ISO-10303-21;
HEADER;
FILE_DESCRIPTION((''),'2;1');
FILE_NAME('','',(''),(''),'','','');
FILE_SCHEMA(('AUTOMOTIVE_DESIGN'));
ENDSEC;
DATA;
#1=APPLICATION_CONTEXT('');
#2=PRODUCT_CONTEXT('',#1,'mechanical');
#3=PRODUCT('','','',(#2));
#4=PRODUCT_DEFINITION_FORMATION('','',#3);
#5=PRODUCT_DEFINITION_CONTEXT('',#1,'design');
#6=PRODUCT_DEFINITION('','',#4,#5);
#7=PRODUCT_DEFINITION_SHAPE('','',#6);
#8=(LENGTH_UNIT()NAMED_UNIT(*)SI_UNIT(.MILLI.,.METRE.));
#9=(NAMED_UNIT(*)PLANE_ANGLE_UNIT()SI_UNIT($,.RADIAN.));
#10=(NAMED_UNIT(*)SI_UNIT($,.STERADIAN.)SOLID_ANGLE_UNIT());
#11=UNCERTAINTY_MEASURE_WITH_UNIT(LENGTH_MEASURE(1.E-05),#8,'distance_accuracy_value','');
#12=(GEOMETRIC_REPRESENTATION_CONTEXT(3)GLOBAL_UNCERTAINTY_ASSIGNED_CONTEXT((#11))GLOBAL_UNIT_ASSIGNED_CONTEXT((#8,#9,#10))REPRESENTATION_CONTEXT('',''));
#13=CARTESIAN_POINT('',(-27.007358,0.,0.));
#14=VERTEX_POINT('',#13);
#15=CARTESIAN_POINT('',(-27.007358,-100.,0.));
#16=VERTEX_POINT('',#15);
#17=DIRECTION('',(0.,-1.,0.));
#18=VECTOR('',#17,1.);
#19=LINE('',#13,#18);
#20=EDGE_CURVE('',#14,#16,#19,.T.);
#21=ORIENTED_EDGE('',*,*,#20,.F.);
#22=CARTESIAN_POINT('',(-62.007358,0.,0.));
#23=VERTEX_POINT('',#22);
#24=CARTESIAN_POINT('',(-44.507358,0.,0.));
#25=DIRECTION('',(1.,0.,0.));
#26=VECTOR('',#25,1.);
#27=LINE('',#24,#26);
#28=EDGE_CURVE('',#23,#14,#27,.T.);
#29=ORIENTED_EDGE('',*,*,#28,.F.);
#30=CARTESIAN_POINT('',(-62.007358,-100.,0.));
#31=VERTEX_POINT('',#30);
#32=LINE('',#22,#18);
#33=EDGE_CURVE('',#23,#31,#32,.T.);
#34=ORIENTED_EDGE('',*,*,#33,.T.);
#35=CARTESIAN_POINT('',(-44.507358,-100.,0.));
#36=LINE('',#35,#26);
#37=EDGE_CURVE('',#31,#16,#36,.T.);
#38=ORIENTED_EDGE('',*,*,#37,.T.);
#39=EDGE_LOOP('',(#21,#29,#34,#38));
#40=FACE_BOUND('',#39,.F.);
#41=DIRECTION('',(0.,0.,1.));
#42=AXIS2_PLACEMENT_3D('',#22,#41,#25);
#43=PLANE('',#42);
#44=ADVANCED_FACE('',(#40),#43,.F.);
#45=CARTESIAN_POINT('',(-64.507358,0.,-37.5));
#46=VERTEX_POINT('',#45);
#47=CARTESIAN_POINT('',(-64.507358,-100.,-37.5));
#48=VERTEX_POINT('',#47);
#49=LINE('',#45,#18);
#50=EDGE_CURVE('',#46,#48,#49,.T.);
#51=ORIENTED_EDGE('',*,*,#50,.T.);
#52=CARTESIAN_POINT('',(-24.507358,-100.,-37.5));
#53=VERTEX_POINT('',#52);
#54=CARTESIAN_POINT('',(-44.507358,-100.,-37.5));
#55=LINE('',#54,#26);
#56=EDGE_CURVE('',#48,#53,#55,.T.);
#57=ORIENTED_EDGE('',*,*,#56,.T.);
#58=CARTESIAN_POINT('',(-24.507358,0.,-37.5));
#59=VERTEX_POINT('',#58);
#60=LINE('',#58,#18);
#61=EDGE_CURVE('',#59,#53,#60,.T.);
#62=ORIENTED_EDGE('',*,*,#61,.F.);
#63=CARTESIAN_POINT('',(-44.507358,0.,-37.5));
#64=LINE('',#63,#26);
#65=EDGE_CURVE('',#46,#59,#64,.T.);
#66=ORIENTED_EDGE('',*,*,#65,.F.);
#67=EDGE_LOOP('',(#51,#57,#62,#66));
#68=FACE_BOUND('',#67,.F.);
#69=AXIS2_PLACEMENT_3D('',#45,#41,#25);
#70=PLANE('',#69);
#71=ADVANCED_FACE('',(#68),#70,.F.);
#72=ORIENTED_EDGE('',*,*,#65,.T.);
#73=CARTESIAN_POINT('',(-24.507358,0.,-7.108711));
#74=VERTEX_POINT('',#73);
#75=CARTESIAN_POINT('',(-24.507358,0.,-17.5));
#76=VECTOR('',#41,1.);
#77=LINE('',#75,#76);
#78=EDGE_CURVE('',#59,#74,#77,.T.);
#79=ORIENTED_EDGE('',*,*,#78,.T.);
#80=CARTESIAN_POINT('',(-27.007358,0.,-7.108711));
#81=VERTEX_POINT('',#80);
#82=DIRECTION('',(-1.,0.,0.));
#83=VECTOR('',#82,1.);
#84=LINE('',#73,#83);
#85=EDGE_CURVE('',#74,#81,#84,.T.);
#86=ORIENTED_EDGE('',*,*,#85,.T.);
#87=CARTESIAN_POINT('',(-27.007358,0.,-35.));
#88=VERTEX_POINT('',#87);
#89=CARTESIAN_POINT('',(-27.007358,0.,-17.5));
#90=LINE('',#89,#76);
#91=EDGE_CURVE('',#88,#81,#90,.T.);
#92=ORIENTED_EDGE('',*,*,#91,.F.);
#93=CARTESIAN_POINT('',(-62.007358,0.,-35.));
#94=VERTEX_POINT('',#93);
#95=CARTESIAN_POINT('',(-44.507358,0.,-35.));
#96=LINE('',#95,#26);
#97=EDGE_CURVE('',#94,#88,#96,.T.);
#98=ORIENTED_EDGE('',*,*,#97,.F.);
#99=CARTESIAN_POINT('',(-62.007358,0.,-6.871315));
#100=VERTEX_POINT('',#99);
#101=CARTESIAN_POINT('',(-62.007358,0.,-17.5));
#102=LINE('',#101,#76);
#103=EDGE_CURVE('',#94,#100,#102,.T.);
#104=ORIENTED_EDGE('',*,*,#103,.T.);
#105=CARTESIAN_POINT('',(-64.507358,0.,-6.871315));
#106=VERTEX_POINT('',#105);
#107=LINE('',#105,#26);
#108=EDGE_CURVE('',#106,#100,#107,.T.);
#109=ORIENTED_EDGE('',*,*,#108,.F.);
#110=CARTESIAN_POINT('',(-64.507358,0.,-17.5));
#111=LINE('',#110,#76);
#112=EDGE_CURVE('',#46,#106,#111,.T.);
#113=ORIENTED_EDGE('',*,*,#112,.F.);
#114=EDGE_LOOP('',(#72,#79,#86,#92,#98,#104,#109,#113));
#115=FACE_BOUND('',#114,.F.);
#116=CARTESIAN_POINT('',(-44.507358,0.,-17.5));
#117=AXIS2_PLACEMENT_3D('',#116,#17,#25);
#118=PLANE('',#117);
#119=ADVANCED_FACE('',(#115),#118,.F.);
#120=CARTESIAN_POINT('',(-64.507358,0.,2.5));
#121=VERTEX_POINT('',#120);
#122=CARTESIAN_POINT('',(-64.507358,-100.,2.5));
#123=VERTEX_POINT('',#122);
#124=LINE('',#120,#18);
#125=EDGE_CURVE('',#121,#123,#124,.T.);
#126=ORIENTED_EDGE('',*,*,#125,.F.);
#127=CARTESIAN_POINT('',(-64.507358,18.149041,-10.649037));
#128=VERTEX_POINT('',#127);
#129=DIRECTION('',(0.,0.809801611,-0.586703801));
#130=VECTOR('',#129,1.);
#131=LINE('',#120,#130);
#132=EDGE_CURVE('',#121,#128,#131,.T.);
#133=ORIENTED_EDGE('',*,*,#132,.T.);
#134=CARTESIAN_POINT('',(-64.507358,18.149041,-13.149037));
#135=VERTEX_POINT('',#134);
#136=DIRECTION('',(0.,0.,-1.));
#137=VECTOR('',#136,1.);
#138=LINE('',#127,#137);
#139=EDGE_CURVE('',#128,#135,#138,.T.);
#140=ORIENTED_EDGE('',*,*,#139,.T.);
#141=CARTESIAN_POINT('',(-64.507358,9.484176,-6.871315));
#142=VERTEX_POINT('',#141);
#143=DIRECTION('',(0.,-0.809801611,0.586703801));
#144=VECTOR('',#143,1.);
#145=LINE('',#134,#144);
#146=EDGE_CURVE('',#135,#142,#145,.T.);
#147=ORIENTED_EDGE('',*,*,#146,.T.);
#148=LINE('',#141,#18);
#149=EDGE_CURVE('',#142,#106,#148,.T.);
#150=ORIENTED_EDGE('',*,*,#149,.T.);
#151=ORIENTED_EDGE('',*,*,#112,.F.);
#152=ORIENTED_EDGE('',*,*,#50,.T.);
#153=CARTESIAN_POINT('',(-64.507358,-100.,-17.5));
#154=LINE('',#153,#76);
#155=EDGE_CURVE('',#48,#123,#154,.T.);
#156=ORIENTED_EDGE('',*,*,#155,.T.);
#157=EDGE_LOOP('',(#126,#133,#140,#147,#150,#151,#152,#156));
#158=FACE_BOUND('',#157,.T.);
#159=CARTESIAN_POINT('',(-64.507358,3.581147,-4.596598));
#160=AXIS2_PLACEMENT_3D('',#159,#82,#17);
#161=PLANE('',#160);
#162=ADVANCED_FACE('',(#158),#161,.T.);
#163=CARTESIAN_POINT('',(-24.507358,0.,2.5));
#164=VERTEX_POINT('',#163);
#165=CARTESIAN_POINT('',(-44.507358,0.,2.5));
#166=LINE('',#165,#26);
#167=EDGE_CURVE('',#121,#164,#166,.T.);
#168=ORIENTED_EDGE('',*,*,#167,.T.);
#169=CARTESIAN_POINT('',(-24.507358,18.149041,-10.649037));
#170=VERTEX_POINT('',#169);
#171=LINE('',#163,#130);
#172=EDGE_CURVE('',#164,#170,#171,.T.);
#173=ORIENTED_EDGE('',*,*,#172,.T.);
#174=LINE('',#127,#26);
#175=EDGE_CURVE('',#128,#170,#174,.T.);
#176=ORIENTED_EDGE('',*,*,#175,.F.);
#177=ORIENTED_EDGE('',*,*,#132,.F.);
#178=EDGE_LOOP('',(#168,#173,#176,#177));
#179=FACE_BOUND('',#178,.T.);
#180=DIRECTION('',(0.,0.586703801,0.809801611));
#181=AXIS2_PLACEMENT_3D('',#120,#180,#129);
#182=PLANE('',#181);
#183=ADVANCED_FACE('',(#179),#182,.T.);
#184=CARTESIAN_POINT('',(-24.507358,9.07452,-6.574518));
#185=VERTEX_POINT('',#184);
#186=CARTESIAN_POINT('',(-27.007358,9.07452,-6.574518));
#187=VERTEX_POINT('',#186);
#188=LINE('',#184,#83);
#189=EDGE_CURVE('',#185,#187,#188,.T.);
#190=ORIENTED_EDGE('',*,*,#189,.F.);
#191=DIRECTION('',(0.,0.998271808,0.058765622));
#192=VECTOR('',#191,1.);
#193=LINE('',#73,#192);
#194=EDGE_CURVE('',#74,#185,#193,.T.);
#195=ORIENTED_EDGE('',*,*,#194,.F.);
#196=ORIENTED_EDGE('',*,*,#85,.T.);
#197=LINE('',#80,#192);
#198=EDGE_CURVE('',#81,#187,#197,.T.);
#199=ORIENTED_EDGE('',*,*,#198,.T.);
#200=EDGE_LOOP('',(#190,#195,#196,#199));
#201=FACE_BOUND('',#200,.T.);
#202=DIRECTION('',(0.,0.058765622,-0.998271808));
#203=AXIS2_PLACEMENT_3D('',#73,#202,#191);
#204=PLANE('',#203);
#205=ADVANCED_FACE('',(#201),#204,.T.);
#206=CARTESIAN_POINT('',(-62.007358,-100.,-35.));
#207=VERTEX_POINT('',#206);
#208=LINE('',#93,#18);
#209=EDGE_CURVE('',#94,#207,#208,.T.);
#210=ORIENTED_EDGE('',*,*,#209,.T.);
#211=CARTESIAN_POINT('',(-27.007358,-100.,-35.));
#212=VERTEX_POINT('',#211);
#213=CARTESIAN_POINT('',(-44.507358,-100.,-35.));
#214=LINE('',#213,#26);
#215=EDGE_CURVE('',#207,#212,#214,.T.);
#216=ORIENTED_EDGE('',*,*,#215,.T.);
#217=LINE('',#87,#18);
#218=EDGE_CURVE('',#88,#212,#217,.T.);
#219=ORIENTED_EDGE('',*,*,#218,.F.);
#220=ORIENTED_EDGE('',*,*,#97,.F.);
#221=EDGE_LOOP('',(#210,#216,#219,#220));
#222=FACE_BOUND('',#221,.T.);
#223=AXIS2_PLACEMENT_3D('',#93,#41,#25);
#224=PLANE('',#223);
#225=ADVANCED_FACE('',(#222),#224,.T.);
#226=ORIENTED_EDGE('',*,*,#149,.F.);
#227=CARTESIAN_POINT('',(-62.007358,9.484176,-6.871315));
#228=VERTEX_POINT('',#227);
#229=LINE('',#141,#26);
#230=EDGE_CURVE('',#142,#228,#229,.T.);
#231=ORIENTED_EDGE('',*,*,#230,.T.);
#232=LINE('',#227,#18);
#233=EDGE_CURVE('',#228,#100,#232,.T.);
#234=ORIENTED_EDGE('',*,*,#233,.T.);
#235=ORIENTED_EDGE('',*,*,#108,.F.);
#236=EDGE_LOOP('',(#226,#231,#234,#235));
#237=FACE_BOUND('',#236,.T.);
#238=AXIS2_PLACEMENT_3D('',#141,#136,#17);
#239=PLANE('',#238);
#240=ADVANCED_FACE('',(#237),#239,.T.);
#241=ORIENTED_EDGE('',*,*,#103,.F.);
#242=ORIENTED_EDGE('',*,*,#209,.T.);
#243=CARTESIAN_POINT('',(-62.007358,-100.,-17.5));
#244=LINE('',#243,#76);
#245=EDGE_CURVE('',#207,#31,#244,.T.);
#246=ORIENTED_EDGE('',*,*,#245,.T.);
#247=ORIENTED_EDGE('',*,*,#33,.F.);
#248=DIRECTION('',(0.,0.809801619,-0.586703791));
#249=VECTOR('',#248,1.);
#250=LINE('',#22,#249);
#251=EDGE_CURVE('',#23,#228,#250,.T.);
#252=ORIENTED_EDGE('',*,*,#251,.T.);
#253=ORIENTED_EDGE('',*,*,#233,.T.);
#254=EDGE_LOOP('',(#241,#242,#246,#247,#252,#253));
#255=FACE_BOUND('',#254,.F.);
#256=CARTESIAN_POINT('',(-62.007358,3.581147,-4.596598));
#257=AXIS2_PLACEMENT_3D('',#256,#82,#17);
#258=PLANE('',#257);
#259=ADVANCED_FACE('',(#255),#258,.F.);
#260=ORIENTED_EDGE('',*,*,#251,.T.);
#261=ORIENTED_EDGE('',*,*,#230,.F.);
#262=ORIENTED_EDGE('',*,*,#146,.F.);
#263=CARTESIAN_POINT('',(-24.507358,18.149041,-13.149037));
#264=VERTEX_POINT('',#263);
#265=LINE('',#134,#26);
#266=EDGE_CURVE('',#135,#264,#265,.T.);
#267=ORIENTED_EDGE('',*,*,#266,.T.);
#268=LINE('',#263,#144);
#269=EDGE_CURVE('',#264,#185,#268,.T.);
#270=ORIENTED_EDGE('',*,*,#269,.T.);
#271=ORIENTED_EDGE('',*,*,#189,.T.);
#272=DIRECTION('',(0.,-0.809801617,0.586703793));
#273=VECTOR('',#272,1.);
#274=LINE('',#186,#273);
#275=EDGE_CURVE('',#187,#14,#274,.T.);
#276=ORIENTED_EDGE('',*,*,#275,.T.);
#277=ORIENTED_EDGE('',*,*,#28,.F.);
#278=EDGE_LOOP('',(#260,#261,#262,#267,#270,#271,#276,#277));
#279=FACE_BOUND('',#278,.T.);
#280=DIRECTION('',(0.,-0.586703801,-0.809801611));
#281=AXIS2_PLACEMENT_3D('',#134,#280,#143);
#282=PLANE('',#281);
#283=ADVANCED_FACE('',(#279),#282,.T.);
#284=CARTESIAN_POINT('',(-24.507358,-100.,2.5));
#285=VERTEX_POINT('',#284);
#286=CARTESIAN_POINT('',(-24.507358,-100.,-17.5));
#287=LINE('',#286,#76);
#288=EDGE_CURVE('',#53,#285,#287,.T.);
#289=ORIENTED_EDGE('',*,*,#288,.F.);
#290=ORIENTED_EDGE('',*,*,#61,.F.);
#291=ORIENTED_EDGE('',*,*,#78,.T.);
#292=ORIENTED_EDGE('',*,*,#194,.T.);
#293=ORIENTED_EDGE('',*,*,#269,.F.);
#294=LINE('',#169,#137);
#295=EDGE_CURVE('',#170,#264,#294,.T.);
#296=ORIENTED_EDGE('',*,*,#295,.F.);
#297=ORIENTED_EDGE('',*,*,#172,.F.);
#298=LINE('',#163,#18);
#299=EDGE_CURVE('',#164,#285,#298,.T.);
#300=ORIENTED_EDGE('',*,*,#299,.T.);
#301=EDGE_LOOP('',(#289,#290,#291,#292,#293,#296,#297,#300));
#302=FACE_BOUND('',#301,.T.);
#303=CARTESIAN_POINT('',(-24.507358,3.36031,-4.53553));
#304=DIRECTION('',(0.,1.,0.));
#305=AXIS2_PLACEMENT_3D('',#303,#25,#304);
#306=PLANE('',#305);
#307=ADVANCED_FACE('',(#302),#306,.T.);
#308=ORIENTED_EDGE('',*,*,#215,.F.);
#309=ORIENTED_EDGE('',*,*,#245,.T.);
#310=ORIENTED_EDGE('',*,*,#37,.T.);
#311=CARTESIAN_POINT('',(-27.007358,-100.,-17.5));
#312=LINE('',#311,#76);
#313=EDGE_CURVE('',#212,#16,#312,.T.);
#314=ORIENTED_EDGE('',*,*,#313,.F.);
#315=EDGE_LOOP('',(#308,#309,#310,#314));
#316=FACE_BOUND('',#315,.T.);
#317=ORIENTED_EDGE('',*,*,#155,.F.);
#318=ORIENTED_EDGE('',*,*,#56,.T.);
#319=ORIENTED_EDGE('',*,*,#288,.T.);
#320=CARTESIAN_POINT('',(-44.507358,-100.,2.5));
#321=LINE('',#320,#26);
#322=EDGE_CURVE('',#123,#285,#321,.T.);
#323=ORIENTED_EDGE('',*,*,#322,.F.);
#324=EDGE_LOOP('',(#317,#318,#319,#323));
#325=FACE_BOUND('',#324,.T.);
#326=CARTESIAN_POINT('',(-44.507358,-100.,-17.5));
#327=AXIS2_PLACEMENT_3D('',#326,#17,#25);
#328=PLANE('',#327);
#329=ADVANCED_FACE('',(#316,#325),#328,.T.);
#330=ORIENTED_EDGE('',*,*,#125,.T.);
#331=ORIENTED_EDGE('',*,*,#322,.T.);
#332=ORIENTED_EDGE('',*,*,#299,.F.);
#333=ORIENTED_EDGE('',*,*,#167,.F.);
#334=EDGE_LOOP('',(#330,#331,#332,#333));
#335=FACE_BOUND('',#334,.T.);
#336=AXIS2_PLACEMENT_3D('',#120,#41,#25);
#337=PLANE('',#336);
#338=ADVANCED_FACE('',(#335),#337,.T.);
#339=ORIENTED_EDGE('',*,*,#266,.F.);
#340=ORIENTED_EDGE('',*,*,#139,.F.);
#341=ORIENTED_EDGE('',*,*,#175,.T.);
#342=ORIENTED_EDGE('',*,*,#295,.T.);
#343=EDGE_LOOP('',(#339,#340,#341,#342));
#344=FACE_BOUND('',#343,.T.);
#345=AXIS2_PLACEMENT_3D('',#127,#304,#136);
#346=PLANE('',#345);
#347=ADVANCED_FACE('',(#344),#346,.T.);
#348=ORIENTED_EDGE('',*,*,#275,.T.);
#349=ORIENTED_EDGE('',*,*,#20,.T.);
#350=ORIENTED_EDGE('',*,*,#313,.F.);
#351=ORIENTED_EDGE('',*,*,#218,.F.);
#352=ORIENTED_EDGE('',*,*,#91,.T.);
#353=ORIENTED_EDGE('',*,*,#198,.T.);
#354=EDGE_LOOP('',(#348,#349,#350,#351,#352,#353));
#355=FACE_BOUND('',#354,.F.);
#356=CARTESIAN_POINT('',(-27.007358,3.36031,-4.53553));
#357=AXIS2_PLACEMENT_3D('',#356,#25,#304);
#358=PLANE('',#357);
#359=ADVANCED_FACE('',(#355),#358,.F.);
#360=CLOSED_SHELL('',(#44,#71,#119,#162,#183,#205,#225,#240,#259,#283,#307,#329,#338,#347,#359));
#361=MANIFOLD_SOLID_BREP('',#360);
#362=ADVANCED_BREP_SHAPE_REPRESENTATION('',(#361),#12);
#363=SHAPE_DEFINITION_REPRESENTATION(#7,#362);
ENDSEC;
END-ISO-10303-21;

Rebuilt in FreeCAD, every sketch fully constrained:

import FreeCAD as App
import Part
import Sketcher


def add_polygon(sketch, points):
    """Adds a closed chain of lines whose ends are joined by coincident constraints."""
    first, n = sketch.GeometryCount, len(points)
    for a, b in zip(points, points[1:] + points[:1]):
        sketch.addGeometry(Part.LineSegment(App.Vector(*a, 0), App.Vector(*b, 0)), False)
    for i in range(n):
        sketch.addConstraint(Sketcher.Constraint("Coincident", first + i, 2, first + (i + 1) % n, 1))

doc = App.newDocument("Part")
body = doc.addObject("PartDesign::Body", "Body")

sketch1 = body.newObject("Sketcher::SketchObject", "Sketch")
sketch1.AttachmentSupport = (doc.getObject("XZ_Plane"), [""])
sketch1.MapMode = "FlatFace"
add_polygon(sketch1, [(-65, 2), (-65, -38), (-25, -38), (-25, 2)])
add_polygon(sketch1, [(-27, -35), (-62, -35), (-62, 0), (-27, 0)])
sketch1.addConstraint(Sketcher.Constraint("Vertical", 0))
sketch1.addConstraint(Sketcher.Constraint("Horizontal", 1))
sketch1.addConstraint(Sketcher.Constraint("Vertical", 2))
sketch1.addConstraint(Sketcher.Constraint("Horizontal", 3))
sketch1.addConstraint(Sketcher.Constraint("Horizontal", 4))
sketch1.addConstraint(Sketcher.Constraint("Vertical", 5))
sketch1.addConstraint(Sketcher.Constraint("Horizontal", 6))
sketch1.addConstraint(Sketcher.Constraint("Vertical", 7))
sketch1.addConstraint(Sketcher.Constraint("PointOnObject", 5, 2, -1))
sketch1.addConstraint(Sketcher.Constraint("Equal", 3, 0))
sketch1.addConstraint(Sketcher.Constraint("Equal", 6, 5))
sketch1.addConstraint(Sketcher.Constraint("DistanceX", 1, 1, 1, 2, 40.0))
sketch1.addConstraint(Sketcher.Constraint("DistanceX", 4, 2, 4, 1, 35.0))
sketch1.addConstraint(Sketcher.Constraint("DistanceY", 0, 2, -1, 1, 37.5))
sketch1.addConstraint(Sketcher.Constraint("DistanceX", 0, 2, 4, 2, 2.5))
sketch1.addConstraint(Sketcher.Constraint("DistanceX", 1, 2, -1, 1, 24.507358))
pad1 = body.newObject("PartDesign::Pad", "Pad")
pad1.Profile = sketch1
pad1.Length = 100

sketch2 = body.newObject("Sketcher::SketchObject", "Sketch001")
sketch2.AttachmentSupport = (doc.getObject("YZ_Plane"), [""])
sketch2.MapMode = "FlatFace"
sketch2.AttachmentOffset = App.Placement(App.Vector(0, 0, -64.507358), App.Rotation())
add_polygon(sketch2, [(0, 0), (0, 2.5), (18.1, -10.6), (18.1, -13.1)])
sketch2.addConstraint(Sketcher.Constraint("Vertical", 0))
sketch2.addConstraint(Sketcher.Constraint("Vertical", 2))
sketch2.addConstraint(Sketcher.Constraint("Coincident", 3, 2, -1, 1))
sketch2.addConstraint(Sketcher.Constraint("Parallel", 1, 3))
sketch2.addConstraint(Sketcher.Constraint("DistanceY", 0, 1, 0, 2, 2.5))
sketch2.addConstraint(Sketcher.Constraint("DistanceX", -1, 1, 1, 2, 18.149041))
sketch2.addConstraint(Sketcher.Constraint("Distance", 1, 22.411713))
pad2 = body.newObject("PartDesign::Pad", "Pad001")
pad2.Profile = sketch2
pad2.Length = 40

sketch3 = body.newObject("Sketcher::SketchObject", "Sketch002")
sketch3.AttachmentSupport = (doc.getObject("YZ_Plane"), [""])
sketch3.MapMode = "FlatFace"
sketch3.AttachmentOffset = App.Placement(App.Vector(0, 0, -64.507358), App.Rotation())
add_polygon(sketch3, [(0, 0), (9, -7), (0, -7)])
sketch3.addConstraint(Sketcher.Constraint("Horizontal", 1))
sketch3.addConstraint(Sketcher.Constraint("Vertical", 2))
sketch3.addConstraint(Sketcher.Constraint("Coincident", 2, 2, -1, 1))
sketch3.addConstraint(Sketcher.Constraint("DistanceX", 1, 2, 1, 1, 9.484176))
sketch3.addConstraint(Sketcher.Constraint("DistanceY", 2, 1, 2, 2, 6.871315))
pad3 = body.newObject("PartDesign::Pad", "Pad002")
pad3.Profile = sketch3
pad3.Length = 2.5

sketch4 = body.newObject("Sketcher::SketchObject", "Sketch003")
sketch4.AttachmentSupport = (doc.getObject("YZ_Plane"), [""])
sketch4.MapMode = "FlatFace"
sketch4.AttachmentOffset = App.Placement(App.Vector(0, 0, -24.507358), App.Rotation())
add_polygon(sketch4, [(9, -7), (0, 0), (0, -7)])
sketch4.addConstraint(Sketcher.Constraint("Vertical", 1))
sketch4.addConstraint(Sketcher.Constraint("Coincident", 0, 2, -1, 1))
sketch4.addConstraint(Sketcher.Constraint("DistanceY", 1, 2, 1, 1, 7.108711))
sketch4.addConstraint(Sketcher.Constraint("Distance", 2, 9.09023))
sketch4.addConstraint(Sketcher.Constraint("DistanceX", -1, 1, 2, 2, 9.07452))
pad4 = body.newObject("PartDesign::Pad", "Pad003")
pad4.Profile = sketch4
pad4.Length = 2.5
pad4.Reversed = True

doc.recompute()
